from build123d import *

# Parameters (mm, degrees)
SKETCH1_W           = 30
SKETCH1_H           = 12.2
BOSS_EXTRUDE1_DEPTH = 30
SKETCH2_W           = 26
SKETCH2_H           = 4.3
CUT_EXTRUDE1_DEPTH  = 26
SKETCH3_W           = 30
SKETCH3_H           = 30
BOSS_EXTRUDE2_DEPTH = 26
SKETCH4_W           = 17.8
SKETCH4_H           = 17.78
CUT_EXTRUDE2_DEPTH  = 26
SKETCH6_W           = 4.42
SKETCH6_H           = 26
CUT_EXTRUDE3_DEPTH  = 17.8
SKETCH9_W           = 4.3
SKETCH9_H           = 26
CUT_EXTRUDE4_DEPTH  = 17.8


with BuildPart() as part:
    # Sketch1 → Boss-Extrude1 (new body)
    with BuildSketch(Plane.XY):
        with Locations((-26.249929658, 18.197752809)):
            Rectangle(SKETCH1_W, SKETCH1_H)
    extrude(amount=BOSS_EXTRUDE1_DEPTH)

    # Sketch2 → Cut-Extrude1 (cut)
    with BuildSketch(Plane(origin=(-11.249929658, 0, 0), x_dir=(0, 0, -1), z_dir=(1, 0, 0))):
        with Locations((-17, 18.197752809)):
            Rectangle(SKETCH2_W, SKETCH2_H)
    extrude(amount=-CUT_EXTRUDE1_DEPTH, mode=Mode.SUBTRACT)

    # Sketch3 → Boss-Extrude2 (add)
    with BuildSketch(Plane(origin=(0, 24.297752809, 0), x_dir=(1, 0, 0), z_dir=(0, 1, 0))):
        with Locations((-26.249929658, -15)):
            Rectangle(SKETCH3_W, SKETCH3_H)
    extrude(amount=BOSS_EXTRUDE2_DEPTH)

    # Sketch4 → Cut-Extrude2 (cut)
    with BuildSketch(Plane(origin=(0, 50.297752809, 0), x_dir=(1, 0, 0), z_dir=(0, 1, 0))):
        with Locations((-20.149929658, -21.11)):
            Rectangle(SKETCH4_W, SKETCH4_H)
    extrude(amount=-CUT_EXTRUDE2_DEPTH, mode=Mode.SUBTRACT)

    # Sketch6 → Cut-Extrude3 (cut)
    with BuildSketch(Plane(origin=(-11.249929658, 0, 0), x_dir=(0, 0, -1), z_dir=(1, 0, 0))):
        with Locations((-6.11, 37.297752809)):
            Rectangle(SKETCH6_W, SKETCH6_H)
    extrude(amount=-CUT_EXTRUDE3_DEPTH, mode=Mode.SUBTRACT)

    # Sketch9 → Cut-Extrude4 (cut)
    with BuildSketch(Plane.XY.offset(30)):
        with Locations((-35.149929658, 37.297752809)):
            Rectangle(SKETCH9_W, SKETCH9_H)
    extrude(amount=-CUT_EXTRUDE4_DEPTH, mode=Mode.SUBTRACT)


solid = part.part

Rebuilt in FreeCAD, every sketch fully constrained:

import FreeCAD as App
import Part
import Sketcher
from FreeCAD import Vector


def add_polygon(sketch, points):
    """Adds a closed chain of lines whose ends are joined by coincident constraints."""
    first, n = sketch.GeometryCount, len(points)
    for a, b in zip(points, points[1:] + points[:1]):
        sketch.addGeometry(Part.LineSegment(App.Vector(*a, 0), App.Vector(*b, 0)), False)
    for i in range(n):
        sketch.addConstraint(Sketcher.Constraint("Coincident", first + i, 2, first + (i + 1) % n, 1))

doc = App.newDocument("Part")
body = doc.addObject("PartDesign::Body", "Body")

sketch1 = doc.addObject("Sketcher::SketchObject", "Sketch")
body.addObject(sketch1)
sketch1.AttachmentSupport = (doc.XY_Plane, [""])
sketch1.MapMode = "FlatFace"
add_polygon(sketch1, [(-41, 24), (-41, 12), (-11, 12), (-11, 24)])
sketch1.addConstraint([
    Sketcher.Constraint("Vertical", 0),
    Sketcher.Constraint("Horizontal", 1),
    Sketcher.Constraint("Vertical", 2),
    Sketcher.Constraint("Horizontal", 3),
    Sketcher.Constraint("DistanceX", 1, 1, 1, 2, 30.0),
    Sketcher.Constraint("DistanceY", 0, 2, 0, 1, 12.2),
    Sketcher.Constraint("DistanceX", 0, 2, -1, 1, 41.24993),
    Sketcher.Constraint("DistanceY", -1, 1, 0, 2, 12.097753),
])
pad1 = doc.addObject("PartDesign::Pad", "Pad")
body.addObject(pad1)
pad1.Profile = sketch1
pad1.Length = 30

sketch2 = doc.addObject("Sketcher::SketchObject", "Sketch001")
body.addObject(sketch2)
sketch2.AttachmentSupport = (doc.YZ_Plane, [""])
sketch2.MapMode = "FlatFace"
sketch2.AttachmentOffset = App.Placement(Vector(0, 0, -11.24993), App.Rotation())
add_polygon(sketch2, [(20.3, 30), (16, 30), (16, 4), (20.3, 4)])
sketch2.addConstraint([
    Sketcher.Constraint("Horizontal", 0),
    Sketcher.Constraint("Vertical", 1),
    Sketcher.Constraint("Horizontal", 2),
    Sketcher.Constraint("Vertical", 3),
    Sketcher.Constraint("DistanceY", 1, 2, 1, 1, 26.0),
    Sketcher.Constraint("DistanceX", 0, 2, 0, 1, 4.3),
    Sketcher.Constraint("DistanceY", -1, 1, 0, 2, 30.0),
    Sketcher.Constraint("DistanceX", -1, 1, 0, 2, 16.047753),
])
pocket1 = doc.addObject("PartDesign::Pocket", "Pocket")
body.addObject(pocket1)
pocket1.Profile = sketch2
pocket1.Length = 26

sketch3 = doc.addObject("Sketcher::SketchObject", "Sketch002")
body.addObject(sketch3)
sketch3.AttachmentSupport = (doc.XZ_Plane, [""])
sketch3.MapMode = "FlatFace"
sketch3.AttachmentOffset = App.Placement(Vector(0, 0, -24.297753), App.Rotation())
add_polygon(sketch3, [(-41, 0), (-41, 30), (-11, 30), (-11, 0)])
sketch3.addConstraint([
    Sketcher.Constraint("Vertical", 0),
    Sketcher.Constraint("Horizontal", 1),
    Sketcher.Constraint("Vertical", 2),
    Sketcher.Constraint("Horizontal", 3),
    Sketcher.Constraint("PointOnObject", 2, 2, -1),
    Sketcher.Constraint("Equal", 3, 0),
    Sketcher.Constraint("DistanceX", 1, 1, 1, 2, 30.0),
    Sketcher.Constraint("DistanceX", 0, 2, -1, 1, 41.24993),
])
pad2 = doc.addObject("PartDesign::Pad", "Pad001")
body.addObject(pad2)
pad2.Profile = sketch3
pad2.Length = 26
pad2.Reversed = True

sketch4 = doc.addObject("Sketcher::SketchObject", "Sketch003")
body.addObject(sketch4)
sketch4.AttachmentSupport = (doc.XZ_Plane, [""])
sketch4.MapMode = "FlatFace"
sketch4.AttachmentOffset = App.Placement(Vector(0, 0, -50.297753), App.Rotation())
add_polygon(sketch4, [(-29, 12), (-29, 30), (-11, 30), (-11, 12)])
sketch4.addConstraint([
    Sketcher.Constraint("Vertical", 0),
    Sketcher.Constraint("Horizontal", 1),
    Sketcher.Constraint("Vertical", 2),
    Sketcher.Constraint("Horizontal", 3),
    Sketcher.Constraint("DistanceX", 1, 1, 1, 2, 17.8),
    Sketcher.Constraint("DistanceY", -1, 1, 0, 2, 30.0),
    Sketcher.Constraint("DistanceY", 0, 1, 0, 2, 17.78),
    Sketcher.Constraint("DistanceX", 0, 2, -1, 1, 29.04993),
])
pocket2 = doc.addObject("PartDesign::Pocket", "Pocket001")
body.addObject(pocket2)
pocket2.Profile = sketch4
pocket2.Length = 26
pocket2.Reversed = True

sketch5 = doc.addObject("Sketcher::SketchObject", "Sketch004")
body.addObject(sketch5)
sketch5.AttachmentSupport = (doc.YZ_Plane, [""])
sketch5.MapMode = "FlatFace"
sketch5.AttachmentOffset = App.Placement(Vector(0, 0, -11.24993), App.Rotation())
add_polygon(sketch5, [(50.3, 8.3), (24.3, 8.3), (24.3, 3.9), (50.3, 3.9)])
sketch5.addConstraint([
    Sketcher.Constraint("Horizontal", 0),
    Sketcher.Constraint("Vertical", 1),
    Sketcher.Constraint("Horizontal", 2),
    Sketcher.Constraint("Vertical", 3),
    Sketcher.Constraint("DistanceX", 0, 2, 0, 1, 26.0),
    Sketcher.Constraint("DistanceY", 1, 2, 1, 1, 4.42),
    Sketcher.Constraint("DistanceY", -1, 1, 1, 2, 3.9),
    Sketcher.Constraint("DistanceX", -1, 1, 0, 2, 24.297753),
])
pocket3 = doc.addObject("PartDesign::Pocket", "Pocket002")
body.addObject(pocket3)
pocket3.Profile = sketch5
pocket3.Length = 17.8

sketch6 = doc.addObject("Sketcher::SketchObject", "Sketch005")
body.addObject(sketch6)
sketch6.AttachmentSupport = (doc.XY_Plane, [""])
sketch6.MapMode = "FlatFace"
sketch6.AttachmentOffset = App.Placement(Vector(0, 0, 30), App.Rotation())
add_polygon(sketch6, [(-37.3, 50.3), (-37.3, 24.3), (-33, 24.3), (-33, 50.3)])
sketch6.addConstraint([
    Sketcher.Constraint("Vertical", 0),
    Sketcher.Constraint("Horizontal", 1),
    Sketcher.Constraint("Vertical", 2),
    Sketcher.Constraint("Horizontal", 3),
    Sketcher.Constraint("DistanceY", 0, 2, 0, 1, 26.0),
    Sketcher.Constraint("DistanceX", 1, 1, 1, 2, 4.3),
    Sketcher.Constraint("DistanceX", 0, 2, -1, 1, 37.29993),
    Sketcher.Constraint("DistanceY", -1, 1, 0, 2, 24.297753),
])
pocket4 = doc.addObject("PartDesign::Pocket", "Pocket003")
body.addObject(pocket4)
pocket4.Profile = sketch6
pocket4.Length = 17.8

doc.recompute()
